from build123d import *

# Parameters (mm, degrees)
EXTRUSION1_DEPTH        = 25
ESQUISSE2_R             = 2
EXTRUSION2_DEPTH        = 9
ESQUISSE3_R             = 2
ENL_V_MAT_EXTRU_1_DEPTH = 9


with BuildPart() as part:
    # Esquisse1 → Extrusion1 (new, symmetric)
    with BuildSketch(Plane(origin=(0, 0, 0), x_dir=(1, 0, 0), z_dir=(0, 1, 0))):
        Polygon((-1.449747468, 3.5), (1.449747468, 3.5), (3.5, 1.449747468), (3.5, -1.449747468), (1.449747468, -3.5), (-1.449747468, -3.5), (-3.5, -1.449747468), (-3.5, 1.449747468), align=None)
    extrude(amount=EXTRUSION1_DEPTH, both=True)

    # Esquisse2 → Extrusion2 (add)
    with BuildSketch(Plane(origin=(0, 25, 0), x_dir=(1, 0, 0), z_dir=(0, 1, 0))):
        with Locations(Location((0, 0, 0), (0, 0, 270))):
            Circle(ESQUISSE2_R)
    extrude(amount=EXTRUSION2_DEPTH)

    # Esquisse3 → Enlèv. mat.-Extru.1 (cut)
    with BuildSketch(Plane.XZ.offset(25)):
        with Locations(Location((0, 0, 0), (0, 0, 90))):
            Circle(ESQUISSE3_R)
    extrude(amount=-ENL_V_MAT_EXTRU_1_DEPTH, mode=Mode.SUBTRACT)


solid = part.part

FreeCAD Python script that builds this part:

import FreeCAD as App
import Part
import Sketcher

V = App.Vector

doc = App.newDocument("Part")
body = doc.addObject("PartDesign::Body", "Body")

sketch1 = body.newObject("Sketcher::SketchObject", "Sketch")
sketch1.AttachmentSupport = (doc.getObject("XZ_Plane"), [""])
sketch1.MapMode = "FlatFace"
sketch1.addGeometry(Part.LineSegment(V(1.4, -3.5, 0), V(-1.4, -3.5, 0)), False)
sketch1.addGeometry(Part.LineSegment(V(-1.4, -3.5, 0), V(-3.5, -1.4, 0)), False)
sketch1.addGeometry(Part.LineSegment(V(-3.5, -1.4, 0), V(-3.5, 1.4, 0)), False)
sketch1.addGeometry(Part.LineSegment(V(-3.5, 1.4, 0), V(-1.4, 3.5, 0)), False)
sketch1.addGeometry(Part.LineSegment(V(-1.4, 3.5, 0), V(1.4, 3.5, 0)), False)
sketch1.addGeometry(Part.LineSegment(V(1.4, 3.5, 0), V(3.5, 1.4, 0)), False)
sketch1.addGeometry(Part.LineSegment(V(3.5, 1.4, 0), V(3.5, -1.4, 0)), False)
sketch1.addGeometry(Part.LineSegment(V(3.5, -1.4, 0), V(1.4, -3.5, 0)), False)
sketch1.addConstraint(Sketcher.Constraint("Coincident", 0, 2, 1, 1))
sketch1.addConstraint(Sketcher.Constraint("Coincident", 1, 2, 2, 1))
sketch1.addConstraint(Sketcher.Constraint("Coincident", 2, 2, 3, 1))
sketch1.addConstraint(Sketcher.Constraint("Coincident", 3, 2, 4, 1))
sketch1.addConstraint(Sketcher.Constraint("Coincident", 4, 2, 5, 1))
sketch1.addConstraint(Sketcher.Constraint("Coincident", 5, 2, 6, 1))
sketch1.addConstraint(Sketcher.Constraint("Coincident", 6, 2, 7, 1))
sketch1.addConstraint(Sketcher.Constraint("Coincident", 7, 2, 0, 1))
sketch1.addConstraint(Sketcher.Constraint("Horizontal", 0))
sketch1.addConstraint(Sketcher.Constraint("Vertical", 2))
sketch1.addConstraint(Sketcher.Constraint("Horizontal", 4))
sketch1.addConstraint(Sketcher.Constraint("Vertical", 6))
sketch1.addConstraint(Sketcher.Constraint("Symmetric", 0, 2, 4, 2, -1, 1))
sketch1.addConstraint(Sketcher.Constraint("Symmetric", 1, 2, 5, 2, -1, 1))
sketch1.addConstraint(Sketcher.Constraint("Perpendicular", 1, 3))
sketch1.addConstraint(Sketcher.Constraint("Perpendicular", 5, 7))
sketch1.addConstraint(Sketcher.Constraint("Horizontal", 2, 2, 5, 2))
sketch1.addConstraint(Sketcher.Constraint("Horizontal", 1, 2, 6, 2))
sketch1.addConstraint(Sketcher.Constraint("Vertical", 0, 2, 3, 2))
sketch1.addConstraint(Sketcher.Constraint("Equal", 4, 2))
sketch1.addConstraint(Sketcher.Constraint("DistanceY", 0, 2, 3, 2, 7.0))
sketch1.addConstraint(Sketcher.Constraint("DistanceX", 0, 2, 0, 1, 2.899495))
pad1 = body.newObject("PartDesign::Pad", "Pad")
pad1.Profile = sketch1
pad1.Length = 50
pad1.Midplane = True

sketch2 = body.newObject("Sketcher::SketchObject", "Sketch001")
sketch2.AttachmentSupport = (doc.getObject("XZ_Plane"), [""])
sketch2.MapMode = "FlatFace"
sketch2.AttachmentOffset = App.Placement(V(0, 0, -25), App.Rotation())
sketch2.addGeometry(Part.Circle(V(0, 0, 0), V(0, 0, 1), 2), False)
sketch2.addConstraint(Sketcher.Constraint("Coincident", 0, 3, -1, 1))
sketch2.addConstraint(Sketcher.Constraint("Diameter", 0, 4.0))
pad2 = body.newObject("PartDesign::Pad", "Pad001")
pad2.Profile = sketch2
pad2.Length = 9
pad2.Reversed = True

sketch3 = body.newObject("Sketcher::SketchObject", "Sketch002")
sketch3.AttachmentSupport = (doc.getObject("XZ_Plane"), [""])
sketch3.MapMode = "FlatFace"
sketch3.AttachmentOffset = App.Placement(V(0, 0, 25), App.Rotation())
sketch3.addGeometry(Part.Circle(V(0, 0, 0), V(0, 0, 1), 2), False)
sketch3.addConstraint(Sketcher.Constraint("Coincident", 0, 3, -1, 1))
sketch3.addConstraint(Sketcher.Constraint("Diameter", 0, 4.0))
pocket1 = body.newObject("PartDesign::Pocket", "Pocket")
pocket1.Profile = sketch3
pocket1.Length = 9

doc.recompute()
